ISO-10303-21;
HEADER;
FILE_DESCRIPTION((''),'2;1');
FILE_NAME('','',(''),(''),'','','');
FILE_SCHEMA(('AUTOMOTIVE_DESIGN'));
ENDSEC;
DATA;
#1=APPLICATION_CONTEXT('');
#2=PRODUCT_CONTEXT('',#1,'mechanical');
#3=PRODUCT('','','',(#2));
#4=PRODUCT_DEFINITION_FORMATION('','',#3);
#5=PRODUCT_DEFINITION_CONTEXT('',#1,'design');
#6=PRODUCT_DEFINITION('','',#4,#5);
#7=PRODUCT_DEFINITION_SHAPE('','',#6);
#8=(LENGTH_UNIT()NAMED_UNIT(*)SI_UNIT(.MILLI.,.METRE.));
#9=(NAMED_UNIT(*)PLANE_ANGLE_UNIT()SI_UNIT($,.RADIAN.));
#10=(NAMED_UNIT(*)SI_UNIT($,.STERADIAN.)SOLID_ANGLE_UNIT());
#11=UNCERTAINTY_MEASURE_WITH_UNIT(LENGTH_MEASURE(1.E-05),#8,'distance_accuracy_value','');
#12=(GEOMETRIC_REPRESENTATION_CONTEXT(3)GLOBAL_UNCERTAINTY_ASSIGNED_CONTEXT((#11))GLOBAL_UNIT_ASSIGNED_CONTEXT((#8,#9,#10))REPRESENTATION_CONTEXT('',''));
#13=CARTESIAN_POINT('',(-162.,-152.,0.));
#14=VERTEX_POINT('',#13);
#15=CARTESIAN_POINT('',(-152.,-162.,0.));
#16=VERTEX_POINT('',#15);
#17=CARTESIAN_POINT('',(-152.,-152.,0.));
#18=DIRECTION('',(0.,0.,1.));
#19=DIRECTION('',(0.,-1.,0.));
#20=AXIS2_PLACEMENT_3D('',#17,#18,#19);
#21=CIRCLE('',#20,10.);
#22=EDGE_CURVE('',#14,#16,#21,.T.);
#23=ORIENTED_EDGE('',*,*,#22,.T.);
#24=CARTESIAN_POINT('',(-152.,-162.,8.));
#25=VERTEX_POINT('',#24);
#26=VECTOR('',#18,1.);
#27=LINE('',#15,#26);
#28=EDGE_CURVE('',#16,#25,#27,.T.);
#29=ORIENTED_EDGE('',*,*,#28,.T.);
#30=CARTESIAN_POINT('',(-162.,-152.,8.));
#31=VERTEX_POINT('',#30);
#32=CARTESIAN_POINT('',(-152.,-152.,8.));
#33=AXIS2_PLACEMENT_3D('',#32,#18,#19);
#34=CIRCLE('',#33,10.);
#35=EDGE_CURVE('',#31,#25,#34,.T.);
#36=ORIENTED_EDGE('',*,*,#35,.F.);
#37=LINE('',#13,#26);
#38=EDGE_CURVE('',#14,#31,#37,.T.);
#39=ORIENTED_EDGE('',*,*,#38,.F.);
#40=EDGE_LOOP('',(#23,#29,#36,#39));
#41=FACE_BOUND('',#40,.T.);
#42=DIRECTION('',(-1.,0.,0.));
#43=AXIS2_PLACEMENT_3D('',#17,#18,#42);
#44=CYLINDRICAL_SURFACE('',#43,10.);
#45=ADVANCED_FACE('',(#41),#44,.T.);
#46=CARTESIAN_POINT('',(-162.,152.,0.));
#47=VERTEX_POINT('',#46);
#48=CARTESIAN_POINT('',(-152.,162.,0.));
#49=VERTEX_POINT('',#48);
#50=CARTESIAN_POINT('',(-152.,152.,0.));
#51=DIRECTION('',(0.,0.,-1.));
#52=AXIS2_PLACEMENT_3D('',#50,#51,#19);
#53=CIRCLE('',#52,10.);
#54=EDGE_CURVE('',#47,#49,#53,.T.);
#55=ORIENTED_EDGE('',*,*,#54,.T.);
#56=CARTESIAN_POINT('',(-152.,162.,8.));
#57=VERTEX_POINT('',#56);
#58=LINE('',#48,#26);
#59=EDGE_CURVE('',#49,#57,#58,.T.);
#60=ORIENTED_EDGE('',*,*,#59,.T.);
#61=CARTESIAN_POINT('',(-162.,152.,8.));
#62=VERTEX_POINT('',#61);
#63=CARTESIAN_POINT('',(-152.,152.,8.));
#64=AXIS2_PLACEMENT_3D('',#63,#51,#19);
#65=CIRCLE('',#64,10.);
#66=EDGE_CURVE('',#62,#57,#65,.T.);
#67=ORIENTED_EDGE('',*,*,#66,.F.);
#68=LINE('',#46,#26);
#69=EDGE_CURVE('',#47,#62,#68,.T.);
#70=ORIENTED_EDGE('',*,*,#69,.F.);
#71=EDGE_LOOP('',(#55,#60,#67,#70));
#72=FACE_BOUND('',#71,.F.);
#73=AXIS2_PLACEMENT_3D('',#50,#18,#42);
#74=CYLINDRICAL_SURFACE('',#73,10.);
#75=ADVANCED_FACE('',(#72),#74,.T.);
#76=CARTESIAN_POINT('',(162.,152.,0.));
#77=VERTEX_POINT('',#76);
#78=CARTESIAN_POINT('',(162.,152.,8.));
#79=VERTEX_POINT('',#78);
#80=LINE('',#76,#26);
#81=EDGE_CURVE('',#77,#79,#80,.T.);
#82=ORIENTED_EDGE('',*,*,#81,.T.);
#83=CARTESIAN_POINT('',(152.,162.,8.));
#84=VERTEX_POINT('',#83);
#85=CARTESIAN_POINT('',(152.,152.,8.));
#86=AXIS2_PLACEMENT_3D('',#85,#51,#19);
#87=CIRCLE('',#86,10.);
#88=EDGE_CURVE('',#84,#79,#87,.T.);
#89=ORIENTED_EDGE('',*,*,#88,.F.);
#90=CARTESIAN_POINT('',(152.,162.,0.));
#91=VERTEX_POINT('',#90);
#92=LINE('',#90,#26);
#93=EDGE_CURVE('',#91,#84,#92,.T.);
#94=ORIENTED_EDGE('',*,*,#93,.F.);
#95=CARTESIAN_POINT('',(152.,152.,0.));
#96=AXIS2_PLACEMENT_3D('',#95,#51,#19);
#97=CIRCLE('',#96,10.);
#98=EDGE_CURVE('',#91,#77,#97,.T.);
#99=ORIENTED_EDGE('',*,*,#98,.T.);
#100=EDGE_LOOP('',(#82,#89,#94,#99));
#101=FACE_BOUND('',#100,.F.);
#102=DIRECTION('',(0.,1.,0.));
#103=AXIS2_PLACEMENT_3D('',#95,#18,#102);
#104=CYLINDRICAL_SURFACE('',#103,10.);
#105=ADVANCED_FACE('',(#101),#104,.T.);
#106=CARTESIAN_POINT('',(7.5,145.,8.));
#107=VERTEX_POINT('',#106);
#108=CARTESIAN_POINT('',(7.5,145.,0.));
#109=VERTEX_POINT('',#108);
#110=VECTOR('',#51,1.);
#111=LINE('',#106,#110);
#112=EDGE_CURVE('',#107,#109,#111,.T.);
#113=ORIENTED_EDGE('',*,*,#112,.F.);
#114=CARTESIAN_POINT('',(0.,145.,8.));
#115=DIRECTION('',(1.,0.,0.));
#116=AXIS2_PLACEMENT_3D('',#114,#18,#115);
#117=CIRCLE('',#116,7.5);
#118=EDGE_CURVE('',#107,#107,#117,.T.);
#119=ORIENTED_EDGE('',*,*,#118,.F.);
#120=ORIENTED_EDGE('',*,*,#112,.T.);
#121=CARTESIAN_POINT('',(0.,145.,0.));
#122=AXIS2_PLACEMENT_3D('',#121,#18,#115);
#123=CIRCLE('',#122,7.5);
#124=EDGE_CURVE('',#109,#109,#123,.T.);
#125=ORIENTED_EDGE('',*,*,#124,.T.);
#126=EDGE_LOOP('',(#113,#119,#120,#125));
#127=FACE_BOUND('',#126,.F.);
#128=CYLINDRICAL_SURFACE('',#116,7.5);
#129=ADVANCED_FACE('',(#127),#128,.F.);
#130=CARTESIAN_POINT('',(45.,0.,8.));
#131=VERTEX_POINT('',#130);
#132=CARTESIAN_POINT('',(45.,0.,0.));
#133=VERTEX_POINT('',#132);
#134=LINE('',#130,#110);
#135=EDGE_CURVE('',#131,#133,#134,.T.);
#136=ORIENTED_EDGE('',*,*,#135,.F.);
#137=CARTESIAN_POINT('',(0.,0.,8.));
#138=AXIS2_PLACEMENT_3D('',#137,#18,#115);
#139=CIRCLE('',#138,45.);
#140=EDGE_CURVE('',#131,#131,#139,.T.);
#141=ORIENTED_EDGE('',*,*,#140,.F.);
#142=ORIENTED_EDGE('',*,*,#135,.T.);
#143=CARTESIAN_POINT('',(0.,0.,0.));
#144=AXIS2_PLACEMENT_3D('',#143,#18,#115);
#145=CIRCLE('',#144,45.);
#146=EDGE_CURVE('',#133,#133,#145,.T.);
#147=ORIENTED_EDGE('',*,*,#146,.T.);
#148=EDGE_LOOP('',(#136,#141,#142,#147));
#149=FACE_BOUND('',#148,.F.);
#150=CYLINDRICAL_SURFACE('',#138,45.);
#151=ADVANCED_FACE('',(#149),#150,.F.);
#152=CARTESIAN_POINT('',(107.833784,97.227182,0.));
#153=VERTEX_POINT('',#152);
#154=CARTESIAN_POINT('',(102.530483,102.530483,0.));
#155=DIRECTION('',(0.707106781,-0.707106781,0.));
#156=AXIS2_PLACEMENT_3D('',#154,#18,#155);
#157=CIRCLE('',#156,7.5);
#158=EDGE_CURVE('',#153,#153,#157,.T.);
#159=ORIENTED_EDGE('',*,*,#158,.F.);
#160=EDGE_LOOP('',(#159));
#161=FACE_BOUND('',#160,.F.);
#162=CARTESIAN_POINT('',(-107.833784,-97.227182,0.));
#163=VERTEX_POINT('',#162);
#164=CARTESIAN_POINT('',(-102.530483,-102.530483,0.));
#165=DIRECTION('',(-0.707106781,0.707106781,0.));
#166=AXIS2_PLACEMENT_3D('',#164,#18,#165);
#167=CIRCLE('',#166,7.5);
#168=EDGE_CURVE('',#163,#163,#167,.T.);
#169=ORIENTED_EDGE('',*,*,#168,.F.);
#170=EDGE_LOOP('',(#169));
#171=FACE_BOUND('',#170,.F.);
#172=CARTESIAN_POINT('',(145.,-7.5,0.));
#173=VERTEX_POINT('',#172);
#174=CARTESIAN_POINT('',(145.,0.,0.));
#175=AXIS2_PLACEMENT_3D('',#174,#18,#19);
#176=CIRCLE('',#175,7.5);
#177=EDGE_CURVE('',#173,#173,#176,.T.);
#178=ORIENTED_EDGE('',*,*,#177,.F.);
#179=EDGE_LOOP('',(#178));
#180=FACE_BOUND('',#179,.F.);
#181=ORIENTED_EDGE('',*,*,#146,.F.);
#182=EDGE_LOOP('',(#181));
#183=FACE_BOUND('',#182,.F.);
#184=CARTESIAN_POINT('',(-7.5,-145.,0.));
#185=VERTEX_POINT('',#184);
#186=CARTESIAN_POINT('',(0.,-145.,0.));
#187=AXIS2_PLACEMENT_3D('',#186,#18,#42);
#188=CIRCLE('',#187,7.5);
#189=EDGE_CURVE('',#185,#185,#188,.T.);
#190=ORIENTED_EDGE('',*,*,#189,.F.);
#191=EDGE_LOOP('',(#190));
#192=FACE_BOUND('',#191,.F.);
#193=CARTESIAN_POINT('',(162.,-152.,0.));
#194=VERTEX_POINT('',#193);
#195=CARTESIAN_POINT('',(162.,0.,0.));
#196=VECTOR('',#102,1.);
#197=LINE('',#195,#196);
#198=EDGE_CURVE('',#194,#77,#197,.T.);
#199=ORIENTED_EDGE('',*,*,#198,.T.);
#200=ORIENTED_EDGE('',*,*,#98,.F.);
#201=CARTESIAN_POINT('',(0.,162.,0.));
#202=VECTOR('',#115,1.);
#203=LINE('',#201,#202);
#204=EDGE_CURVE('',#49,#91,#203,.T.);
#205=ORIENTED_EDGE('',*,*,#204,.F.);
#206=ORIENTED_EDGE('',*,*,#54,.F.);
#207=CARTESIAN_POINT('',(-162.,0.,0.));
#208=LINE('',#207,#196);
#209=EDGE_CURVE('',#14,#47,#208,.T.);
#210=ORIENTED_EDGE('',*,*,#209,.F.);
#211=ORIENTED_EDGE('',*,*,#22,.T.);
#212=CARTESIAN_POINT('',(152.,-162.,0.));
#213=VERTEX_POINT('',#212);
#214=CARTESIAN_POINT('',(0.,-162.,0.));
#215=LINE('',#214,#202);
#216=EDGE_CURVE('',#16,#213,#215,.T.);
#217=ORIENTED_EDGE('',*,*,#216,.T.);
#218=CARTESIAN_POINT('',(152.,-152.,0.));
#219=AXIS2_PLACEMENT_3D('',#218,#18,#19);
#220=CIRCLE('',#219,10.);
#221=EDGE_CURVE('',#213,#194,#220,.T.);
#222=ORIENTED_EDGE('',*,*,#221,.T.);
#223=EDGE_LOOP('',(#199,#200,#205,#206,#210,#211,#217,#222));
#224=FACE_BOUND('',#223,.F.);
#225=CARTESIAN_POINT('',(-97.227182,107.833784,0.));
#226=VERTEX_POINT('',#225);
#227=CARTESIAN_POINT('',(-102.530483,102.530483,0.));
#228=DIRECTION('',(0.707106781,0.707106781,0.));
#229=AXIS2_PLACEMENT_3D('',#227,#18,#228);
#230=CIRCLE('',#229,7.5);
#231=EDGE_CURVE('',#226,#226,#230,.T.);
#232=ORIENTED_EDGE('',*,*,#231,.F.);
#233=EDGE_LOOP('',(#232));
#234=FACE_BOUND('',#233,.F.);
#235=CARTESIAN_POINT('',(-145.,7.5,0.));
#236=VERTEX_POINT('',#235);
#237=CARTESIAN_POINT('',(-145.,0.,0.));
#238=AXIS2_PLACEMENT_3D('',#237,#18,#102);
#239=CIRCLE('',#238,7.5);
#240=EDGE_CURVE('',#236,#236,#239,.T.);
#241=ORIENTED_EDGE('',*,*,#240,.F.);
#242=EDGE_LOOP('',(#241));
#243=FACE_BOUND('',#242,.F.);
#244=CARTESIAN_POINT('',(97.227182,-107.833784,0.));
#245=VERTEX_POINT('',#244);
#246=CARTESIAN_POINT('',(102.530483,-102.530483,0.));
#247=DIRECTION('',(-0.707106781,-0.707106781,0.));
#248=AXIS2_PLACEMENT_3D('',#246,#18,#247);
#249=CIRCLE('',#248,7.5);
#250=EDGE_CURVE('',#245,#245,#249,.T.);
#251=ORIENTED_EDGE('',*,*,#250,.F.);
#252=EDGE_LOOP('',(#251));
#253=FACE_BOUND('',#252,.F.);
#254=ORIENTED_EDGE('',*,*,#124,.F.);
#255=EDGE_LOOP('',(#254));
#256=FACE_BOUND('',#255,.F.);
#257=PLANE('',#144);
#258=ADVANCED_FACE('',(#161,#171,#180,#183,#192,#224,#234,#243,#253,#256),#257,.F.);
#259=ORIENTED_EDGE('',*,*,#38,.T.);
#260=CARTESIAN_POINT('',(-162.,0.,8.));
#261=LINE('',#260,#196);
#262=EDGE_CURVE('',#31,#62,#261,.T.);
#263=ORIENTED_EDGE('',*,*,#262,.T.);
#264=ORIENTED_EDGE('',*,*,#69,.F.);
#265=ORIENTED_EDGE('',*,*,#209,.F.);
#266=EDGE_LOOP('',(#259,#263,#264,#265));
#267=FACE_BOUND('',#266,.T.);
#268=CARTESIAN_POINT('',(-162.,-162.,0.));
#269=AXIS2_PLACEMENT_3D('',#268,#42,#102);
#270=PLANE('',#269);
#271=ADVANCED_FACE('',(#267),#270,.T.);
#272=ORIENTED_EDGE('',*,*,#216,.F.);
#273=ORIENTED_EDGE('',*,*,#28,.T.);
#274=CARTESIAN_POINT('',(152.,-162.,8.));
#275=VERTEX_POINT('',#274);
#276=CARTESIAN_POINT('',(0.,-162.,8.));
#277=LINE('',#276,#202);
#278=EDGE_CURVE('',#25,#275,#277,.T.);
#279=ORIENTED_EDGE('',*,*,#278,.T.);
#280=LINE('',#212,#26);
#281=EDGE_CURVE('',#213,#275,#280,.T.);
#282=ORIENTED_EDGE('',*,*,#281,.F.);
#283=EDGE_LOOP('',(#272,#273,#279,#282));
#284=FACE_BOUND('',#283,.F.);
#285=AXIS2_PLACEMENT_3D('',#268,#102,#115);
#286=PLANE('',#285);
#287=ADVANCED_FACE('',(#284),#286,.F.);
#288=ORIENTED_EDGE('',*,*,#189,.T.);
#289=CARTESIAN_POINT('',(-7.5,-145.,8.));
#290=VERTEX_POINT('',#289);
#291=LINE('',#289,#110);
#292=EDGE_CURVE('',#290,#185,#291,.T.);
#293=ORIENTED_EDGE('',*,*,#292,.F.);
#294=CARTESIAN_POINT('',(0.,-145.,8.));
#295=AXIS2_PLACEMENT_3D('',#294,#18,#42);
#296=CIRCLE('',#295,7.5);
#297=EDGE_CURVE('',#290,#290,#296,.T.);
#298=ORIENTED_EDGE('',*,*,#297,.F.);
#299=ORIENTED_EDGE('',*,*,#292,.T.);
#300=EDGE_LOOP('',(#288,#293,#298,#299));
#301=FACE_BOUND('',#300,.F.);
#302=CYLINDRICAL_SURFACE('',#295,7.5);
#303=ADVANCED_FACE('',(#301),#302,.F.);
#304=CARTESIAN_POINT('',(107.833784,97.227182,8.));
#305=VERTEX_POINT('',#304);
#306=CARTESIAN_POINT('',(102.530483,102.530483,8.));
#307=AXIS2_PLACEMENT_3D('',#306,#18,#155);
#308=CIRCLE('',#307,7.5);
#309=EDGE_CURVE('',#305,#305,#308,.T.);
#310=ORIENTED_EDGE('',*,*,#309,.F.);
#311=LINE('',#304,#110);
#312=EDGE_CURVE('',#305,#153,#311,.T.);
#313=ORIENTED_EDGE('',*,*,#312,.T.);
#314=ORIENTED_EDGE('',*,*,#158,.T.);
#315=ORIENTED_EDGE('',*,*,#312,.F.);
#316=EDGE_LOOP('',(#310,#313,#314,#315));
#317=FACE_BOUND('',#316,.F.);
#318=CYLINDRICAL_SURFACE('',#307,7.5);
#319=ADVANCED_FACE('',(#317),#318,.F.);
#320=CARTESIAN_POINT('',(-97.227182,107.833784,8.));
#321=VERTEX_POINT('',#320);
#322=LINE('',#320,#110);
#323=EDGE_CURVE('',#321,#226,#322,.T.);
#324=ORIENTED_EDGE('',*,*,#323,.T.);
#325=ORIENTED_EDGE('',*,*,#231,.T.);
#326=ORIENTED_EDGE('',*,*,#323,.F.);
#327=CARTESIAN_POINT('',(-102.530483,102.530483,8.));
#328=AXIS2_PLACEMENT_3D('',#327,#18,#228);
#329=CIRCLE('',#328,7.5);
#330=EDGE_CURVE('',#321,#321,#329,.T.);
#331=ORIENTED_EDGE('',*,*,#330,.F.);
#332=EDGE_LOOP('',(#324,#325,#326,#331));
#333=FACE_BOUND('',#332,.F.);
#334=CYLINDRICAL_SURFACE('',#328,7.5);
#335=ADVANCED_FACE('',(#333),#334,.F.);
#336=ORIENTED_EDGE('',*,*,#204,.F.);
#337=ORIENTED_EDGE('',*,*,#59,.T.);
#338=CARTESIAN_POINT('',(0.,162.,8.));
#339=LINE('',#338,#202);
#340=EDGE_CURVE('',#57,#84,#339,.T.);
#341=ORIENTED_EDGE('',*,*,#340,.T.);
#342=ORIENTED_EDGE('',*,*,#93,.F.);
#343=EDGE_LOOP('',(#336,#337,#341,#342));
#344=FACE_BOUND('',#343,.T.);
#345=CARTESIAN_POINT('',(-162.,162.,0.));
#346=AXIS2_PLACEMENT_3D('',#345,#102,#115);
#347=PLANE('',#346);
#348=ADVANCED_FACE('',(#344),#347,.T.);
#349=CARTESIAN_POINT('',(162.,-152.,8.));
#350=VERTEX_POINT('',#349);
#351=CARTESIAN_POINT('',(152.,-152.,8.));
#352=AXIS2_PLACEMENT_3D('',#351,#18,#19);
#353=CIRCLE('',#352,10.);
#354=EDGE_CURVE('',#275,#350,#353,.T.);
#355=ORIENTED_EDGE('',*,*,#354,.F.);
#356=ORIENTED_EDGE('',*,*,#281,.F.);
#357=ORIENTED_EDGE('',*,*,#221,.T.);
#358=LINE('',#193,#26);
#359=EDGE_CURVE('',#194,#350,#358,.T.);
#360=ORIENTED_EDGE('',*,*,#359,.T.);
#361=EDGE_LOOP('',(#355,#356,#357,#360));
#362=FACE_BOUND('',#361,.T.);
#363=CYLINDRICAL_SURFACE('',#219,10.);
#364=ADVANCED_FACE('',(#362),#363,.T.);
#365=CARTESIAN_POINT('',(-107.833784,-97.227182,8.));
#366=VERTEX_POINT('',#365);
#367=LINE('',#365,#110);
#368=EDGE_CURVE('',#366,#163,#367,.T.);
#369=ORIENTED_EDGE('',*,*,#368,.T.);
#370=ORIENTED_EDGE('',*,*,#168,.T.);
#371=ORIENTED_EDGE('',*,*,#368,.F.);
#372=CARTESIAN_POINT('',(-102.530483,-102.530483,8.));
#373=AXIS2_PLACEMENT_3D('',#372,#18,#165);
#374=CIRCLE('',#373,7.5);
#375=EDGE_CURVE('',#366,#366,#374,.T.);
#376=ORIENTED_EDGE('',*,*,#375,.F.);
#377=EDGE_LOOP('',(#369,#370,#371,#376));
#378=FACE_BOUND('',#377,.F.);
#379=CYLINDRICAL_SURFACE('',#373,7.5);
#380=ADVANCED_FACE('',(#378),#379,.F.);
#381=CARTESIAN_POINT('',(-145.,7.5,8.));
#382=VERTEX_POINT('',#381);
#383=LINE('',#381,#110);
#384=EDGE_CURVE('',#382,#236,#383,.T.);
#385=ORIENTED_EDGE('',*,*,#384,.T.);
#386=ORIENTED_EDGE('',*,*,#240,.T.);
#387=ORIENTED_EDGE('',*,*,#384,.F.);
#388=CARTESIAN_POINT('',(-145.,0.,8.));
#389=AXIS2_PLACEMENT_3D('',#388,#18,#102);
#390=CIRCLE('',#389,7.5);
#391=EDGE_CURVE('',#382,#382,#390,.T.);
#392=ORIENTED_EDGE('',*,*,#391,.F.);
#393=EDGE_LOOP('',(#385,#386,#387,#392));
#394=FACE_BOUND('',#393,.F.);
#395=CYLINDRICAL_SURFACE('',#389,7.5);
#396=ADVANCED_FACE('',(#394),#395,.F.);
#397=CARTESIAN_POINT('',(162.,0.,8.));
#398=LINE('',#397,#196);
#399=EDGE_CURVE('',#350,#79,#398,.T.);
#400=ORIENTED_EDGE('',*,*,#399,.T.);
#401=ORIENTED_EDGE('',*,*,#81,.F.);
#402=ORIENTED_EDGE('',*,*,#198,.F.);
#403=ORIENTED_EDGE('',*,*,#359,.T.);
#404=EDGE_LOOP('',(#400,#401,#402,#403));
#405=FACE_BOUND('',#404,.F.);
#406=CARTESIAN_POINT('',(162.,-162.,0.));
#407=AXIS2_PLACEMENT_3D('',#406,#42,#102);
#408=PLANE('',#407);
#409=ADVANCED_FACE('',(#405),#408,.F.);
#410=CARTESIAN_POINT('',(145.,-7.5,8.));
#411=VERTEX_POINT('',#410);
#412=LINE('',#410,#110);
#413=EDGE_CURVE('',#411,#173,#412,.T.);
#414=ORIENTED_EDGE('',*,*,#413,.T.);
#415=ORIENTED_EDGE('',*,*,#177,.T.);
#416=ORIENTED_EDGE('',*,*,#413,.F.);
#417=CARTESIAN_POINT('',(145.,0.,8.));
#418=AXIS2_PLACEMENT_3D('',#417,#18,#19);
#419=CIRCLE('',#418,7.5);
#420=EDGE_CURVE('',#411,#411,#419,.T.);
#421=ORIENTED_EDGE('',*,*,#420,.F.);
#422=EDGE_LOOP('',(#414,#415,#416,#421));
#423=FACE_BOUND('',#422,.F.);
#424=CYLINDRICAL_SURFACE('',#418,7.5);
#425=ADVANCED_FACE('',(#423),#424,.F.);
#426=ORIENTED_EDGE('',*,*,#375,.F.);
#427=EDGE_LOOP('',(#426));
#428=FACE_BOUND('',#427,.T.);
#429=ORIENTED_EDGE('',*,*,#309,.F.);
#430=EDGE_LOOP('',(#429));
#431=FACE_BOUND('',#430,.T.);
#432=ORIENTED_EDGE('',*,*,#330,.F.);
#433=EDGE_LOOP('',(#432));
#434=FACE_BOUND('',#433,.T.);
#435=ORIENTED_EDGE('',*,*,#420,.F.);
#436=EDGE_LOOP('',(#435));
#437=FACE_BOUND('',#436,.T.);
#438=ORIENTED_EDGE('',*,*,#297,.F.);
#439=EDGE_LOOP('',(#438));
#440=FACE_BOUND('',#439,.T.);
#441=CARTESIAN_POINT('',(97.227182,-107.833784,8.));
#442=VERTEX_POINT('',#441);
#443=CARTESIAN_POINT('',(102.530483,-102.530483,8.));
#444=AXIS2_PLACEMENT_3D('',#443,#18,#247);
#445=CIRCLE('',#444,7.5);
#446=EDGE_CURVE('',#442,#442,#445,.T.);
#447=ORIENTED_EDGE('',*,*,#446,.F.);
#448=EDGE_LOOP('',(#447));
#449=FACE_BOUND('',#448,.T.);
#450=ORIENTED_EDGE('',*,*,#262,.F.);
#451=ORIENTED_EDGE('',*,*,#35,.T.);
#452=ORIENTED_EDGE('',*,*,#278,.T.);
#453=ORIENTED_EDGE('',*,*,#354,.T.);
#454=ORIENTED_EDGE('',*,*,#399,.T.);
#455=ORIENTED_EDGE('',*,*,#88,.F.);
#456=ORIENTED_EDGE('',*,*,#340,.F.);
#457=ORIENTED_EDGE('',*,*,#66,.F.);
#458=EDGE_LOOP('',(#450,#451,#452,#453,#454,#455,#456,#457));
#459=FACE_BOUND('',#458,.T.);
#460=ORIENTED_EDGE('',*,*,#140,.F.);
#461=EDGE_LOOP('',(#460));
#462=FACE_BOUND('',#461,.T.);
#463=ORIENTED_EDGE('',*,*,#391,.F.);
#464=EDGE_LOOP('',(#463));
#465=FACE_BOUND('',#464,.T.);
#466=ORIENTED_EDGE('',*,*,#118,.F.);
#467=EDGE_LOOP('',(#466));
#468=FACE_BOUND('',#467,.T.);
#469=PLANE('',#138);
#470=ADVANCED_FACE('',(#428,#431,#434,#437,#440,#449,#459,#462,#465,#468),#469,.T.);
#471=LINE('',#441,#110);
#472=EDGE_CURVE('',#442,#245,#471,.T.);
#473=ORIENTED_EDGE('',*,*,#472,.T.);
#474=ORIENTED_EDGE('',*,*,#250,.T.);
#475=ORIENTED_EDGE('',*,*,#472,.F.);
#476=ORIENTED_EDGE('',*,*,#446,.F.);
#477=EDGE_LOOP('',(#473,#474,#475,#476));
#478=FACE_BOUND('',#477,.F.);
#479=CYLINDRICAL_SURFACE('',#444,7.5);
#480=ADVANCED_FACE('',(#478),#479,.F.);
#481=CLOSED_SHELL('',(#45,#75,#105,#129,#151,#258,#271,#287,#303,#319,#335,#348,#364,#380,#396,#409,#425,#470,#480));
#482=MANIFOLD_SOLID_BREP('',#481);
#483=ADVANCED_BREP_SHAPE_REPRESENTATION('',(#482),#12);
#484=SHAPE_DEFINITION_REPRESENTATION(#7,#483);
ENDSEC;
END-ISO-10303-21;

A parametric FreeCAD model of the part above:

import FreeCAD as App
import Part
import Sketcher
from FreeCAD import Vector
Q = App.Units.Quantity


def edges_at(feature, points):
    """Names of the edges that pass closest to the given points."""
    edges = feature.Shape.Edges
    near = lambda p: min(range(len(edges)), key=lambda i: edges[i].distToShape(Part.Vertex(*p))[0])
    return sorted({f"Edge{near(p) + 1}" for p in points})


def add_polygon(sketch, points):
    """Adds a closed chain of lines whose ends are joined by coincident constraints."""
    first, n = sketch.GeometryCount, len(points)
    for a, b in zip(points, points[1:] + points[:1]):
        sketch.addGeometry(Part.LineSegment(App.Vector(*a, 0), App.Vector(*b, 0)), False)
    for i in range(n):
        sketch.addConstraint(Sketcher.Constraint("Coincident", first + i, 2, first + (i + 1) % n, 1))

doc = App.newDocument("Part")
body = doc.addObject("PartDesign::Body", "Body")

# Sketch on XY plane
sketch1 = body.newObject("Sketcher::SketchObject", "Sketch")
sketch1.AttachmentSupport = (doc.getObject("XY_Plane"), [""])
sketch1.MapMode = "FlatFace"
add_polygon(sketch1, [(-162, 162), (-162, -162), (162, -162), (162, 162)])  # lines 0-3
sketch1.addConstraint(Sketcher.Constraint("Vertical", 0))
sketch1.addConstraint(Sketcher.Constraint("Horizontal", 1))
sketch1.addConstraint(Sketcher.Constraint("Vertical", 2))
sketch1.addConstraint(Sketcher.Constraint("Horizontal", 3))
sketch1.addConstraint(Sketcher.Constraint("Symmetric", 0, 2, 2, 2, -1, 1))
sketch1.addConstraint(Sketcher.Constraint("Equal", 3, 0))
sketch1.addConstraint(Sketcher.Constraint("DistanceX", 1, 1, 1, 2, Q("324 mm")))
pad1 = body.newObject("PartDesign::Pad", "Pad")
pad1.Profile = sketch1
pad1.Length = 8

# Sketch on XY plane
sketch2 = body.newObject("Sketcher::SketchObject", "Sketch001")
sketch2.AttachmentSupport = (doc.getObject("XY_Plane"), [""])
sketch2.MapMode = "FlatFace"
sketch2.AttachmentOffset = App.Placement(Vector(0, 0, 8), App.Rotation())
sketch2.addGeometry(Part.Circle(Vector(0, 145, 0), Vector(0, 0, 1), 8), False)
sketch2.addConstraint(Sketcher.Constraint("PointOnObject", 0, 3, -2))
sketch2.addConstraint(Sketcher.Constraint("Diameter", 0, Q("15 mm")))
sketch2.addConstraint(Sketcher.Constraint("DistanceY", -1, 1, 0, 3, Q("145 mm")))
pocket1 = body.newObject("PartDesign::Pocket", "Pocket")
pocket1.Profile = sketch2
pocket1.Length = 8

# Sketch on XY plane
sketch3 = body.newObject("Sketcher::SketchObject", "Sketch002")
sketch3.AttachmentSupport = (doc.getObject("XY_Plane"), [""])
sketch3.MapMode = "FlatFace"
sketch3.AttachmentOffset = App.Placement(Vector(0, 0, 8), App.Rotation())
sketch3.addGeometry(Part.Circle(Vector(0, 0, 0), Vector(0, 0, 1), 45), False)
sketch3.addConstraint(Sketcher.Constraint("Coincident", 0, 3, -1, 1))
sketch3.addConstraint(Sketcher.Constraint("Diameter", 0, Q("90 mm")))
pocket2 = body.newObject("PartDesign::Pocket", "Pocket001")
pocket2.Profile = sketch3
pocket2.Length = 10
doc.recompute()

polarpattern = body.newObject("PartDesign::PolarPattern", "PolarPattern")
polarpattern.Originals = [pocket1]
polarpattern.Axis = (doc.getObject("Z_Axis"), [""])
polarpattern.Angle = 360
polarpattern.Occurrences = 8
body.Tip = polarpattern
doc.recompute()

fillet = body.newObject("PartDesign::Fillet", "Fillet")
fillet.Base = (polarpattern, edges_at(polarpattern, [
    (162, -162, 4),
    (-162, -162, 4),
    (-162, 162, 4),
    (162, 162, 4),
]))
fillet.Radius = 10

doc.recompute()
